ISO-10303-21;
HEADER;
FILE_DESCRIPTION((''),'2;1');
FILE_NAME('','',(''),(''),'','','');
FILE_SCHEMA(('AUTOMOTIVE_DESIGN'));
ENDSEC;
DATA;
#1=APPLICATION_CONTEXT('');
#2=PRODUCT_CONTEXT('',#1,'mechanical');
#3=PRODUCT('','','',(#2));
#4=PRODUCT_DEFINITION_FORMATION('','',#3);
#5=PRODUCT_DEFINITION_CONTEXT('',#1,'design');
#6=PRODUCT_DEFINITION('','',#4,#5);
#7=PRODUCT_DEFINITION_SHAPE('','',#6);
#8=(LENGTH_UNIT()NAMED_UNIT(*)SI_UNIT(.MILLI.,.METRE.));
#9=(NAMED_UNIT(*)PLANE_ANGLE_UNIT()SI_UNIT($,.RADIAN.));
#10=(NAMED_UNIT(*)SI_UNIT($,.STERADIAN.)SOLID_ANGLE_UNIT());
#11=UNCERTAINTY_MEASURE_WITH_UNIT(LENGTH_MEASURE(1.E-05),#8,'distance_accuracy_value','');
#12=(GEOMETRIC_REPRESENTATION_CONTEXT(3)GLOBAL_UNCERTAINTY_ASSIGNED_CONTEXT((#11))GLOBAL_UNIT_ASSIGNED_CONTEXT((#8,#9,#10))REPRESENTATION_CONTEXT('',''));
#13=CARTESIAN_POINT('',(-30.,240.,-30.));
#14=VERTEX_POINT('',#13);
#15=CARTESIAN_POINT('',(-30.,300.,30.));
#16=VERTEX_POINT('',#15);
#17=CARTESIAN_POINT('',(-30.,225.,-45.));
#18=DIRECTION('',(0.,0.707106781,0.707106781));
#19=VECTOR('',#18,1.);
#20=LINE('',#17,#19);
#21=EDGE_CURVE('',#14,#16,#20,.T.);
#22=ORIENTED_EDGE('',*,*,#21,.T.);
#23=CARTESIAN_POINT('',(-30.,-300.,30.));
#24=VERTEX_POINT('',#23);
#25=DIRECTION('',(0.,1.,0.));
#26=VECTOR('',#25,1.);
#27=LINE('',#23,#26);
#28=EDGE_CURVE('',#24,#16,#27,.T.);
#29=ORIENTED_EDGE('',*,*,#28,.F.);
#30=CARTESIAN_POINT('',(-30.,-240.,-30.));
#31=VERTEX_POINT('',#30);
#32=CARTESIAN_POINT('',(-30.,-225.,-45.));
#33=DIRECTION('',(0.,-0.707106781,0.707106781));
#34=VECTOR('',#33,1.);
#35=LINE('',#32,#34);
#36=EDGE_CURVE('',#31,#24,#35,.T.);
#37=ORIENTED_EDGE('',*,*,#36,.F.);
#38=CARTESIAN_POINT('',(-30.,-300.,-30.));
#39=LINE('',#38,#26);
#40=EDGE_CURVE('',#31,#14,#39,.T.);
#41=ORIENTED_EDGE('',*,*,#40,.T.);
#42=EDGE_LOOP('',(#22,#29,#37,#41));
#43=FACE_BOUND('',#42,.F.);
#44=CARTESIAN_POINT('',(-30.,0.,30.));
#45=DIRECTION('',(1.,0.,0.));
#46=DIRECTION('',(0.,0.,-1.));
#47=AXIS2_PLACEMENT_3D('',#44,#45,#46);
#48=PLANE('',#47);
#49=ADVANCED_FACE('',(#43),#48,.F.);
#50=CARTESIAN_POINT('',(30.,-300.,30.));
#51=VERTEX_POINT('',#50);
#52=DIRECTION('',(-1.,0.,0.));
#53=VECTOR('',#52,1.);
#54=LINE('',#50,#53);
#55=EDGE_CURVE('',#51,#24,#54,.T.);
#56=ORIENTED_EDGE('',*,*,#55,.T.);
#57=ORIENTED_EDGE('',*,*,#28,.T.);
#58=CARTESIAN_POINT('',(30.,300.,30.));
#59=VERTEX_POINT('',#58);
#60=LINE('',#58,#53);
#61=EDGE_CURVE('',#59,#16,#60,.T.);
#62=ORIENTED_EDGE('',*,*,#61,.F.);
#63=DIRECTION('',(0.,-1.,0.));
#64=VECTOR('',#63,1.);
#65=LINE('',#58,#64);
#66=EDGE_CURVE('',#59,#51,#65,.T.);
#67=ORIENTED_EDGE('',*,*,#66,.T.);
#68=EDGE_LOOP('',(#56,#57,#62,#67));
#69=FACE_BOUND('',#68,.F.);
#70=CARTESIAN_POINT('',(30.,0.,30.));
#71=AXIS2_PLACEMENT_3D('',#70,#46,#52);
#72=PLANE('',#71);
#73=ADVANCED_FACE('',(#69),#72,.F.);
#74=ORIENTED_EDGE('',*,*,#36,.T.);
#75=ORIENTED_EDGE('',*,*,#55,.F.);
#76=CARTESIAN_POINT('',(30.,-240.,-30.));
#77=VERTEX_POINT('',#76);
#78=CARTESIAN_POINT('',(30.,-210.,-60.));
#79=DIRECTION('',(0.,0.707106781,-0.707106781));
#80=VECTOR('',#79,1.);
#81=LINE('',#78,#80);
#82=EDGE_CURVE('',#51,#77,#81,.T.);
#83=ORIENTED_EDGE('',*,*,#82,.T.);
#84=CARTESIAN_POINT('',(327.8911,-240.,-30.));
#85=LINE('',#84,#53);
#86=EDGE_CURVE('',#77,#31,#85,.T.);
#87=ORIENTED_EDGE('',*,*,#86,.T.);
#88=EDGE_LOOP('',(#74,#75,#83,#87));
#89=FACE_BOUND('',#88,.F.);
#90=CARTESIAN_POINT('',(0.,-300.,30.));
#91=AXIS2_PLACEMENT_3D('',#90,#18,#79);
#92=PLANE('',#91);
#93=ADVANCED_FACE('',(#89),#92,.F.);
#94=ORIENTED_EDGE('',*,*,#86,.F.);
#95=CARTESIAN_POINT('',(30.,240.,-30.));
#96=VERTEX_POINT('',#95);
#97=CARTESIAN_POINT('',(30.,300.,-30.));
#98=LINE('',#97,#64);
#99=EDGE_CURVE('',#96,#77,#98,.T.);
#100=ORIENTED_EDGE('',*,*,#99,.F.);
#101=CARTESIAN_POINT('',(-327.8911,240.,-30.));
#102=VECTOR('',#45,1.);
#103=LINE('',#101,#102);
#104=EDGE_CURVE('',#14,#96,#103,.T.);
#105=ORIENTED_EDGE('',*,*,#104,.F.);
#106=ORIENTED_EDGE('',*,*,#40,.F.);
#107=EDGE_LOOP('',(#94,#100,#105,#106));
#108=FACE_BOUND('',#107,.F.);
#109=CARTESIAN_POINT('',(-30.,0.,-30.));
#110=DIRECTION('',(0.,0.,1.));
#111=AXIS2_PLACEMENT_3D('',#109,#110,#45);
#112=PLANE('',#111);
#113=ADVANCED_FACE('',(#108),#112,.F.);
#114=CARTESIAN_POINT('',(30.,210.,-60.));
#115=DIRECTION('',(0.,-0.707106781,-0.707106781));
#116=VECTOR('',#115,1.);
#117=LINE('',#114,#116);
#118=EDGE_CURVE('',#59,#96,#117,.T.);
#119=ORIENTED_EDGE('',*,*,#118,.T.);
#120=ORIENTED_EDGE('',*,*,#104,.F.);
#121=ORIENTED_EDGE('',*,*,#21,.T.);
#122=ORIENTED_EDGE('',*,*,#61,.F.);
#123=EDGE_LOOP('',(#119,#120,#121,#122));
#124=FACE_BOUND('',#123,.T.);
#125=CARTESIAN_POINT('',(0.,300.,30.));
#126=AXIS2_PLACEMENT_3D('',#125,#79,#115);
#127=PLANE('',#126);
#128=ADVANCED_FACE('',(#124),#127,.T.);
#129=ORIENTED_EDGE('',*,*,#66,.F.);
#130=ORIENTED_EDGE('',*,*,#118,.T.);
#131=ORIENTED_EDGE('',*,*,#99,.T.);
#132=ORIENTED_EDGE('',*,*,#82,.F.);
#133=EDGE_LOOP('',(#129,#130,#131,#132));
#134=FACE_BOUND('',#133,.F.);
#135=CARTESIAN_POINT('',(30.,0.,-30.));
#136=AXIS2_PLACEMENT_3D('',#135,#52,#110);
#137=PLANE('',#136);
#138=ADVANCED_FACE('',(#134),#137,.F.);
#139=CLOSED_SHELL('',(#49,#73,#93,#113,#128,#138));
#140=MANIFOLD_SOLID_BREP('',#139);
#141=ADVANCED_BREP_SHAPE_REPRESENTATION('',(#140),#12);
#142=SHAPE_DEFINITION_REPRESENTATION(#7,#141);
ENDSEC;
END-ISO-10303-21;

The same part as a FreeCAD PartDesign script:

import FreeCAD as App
import Part
import Sketcher

V = App.Vector


def add_polygon(sketch, points):
    """Adds a closed chain of lines whose ends are joined by coincident constraints."""
    first, n = sketch.GeometryCount, len(points)
    for a, b in zip(points, points[1:] + points[:1]):
        sketch.addGeometry(Part.LineSegment(App.Vector(*a, 0), App.Vector(*b, 0)), False)
    for i in range(n):
        sketch.addConstraint(Sketcher.Constraint("Coincident", first + i, 2, first + (i + 1) % n, 1))

doc = App.newDocument("Part")
body = doc.addObject("PartDesign::Body", "Body")

sketch1 = body.newObject("Sketcher::SketchObject", "Sketch")
sketch1.AttachmentSupport = (doc.getObject("XZ_Plane"), [""])
sketch1.MapMode = "FlatFace"
add_polygon(sketch1, [(-30, 30), (-30, -30), (30, -30), (30, 30)])
sketch1.addConstraint(Sketcher.Constraint("Vertical", 0))
sketch1.addConstraint(Sketcher.Constraint("Horizontal", 1))
sketch1.addConstraint(Sketcher.Constraint("Vertical", 2))
sketch1.addConstraint(Sketcher.Constraint("Horizontal", 3))
sketch1.addConstraint(Sketcher.Constraint("Symmetric", 0, 2, 2, 2, -1, 1))
sketch1.addConstraint(Sketcher.Constraint("Equal", 3, 0))
sketch1.addConstraint(Sketcher.Constraint("DistanceX", 1, 1, 1, 2, 60.0))
pad1 = body.newObject("PartDesign::Pad", "Pad")
pad1.Profile = sketch1
pad1.Length = 600
pad1.Midplane = True

sketch2 = body.newObject("Sketcher::SketchObject", "Sketch001")
sketch2.AttachmentSupport = (doc.getObject("YZ_Plane"), [""])
sketch2.MapMode = "FlatFace"
add_polygon(sketch2, [(-240, -30), (-300, 30), (-300, -30)])
add_polygon(sketch2, [(300, -30), (300, 30), (240, -30)])
sketch2.addConstraint(Sketcher.Constraint("Vertical", 1))
sketch2.addConstraint(Sketcher.Constraint("Horizontal", 2))
sketch2.addConstraint(Sketcher.Constraint("Vertical", 3))
sketch2.addConstraint(Sketcher.Constraint("Horizontal", 5))
sketch2.addConstraint(Sketcher.Constraint("Symmetric", 1, 2, 3, 2, -1, 1))
sketch2.addConstraint(Sketcher.Constraint("Symmetric", 2, 2, 4, 2, -2))
sketch2.addConstraint(Sketcher.Constraint("Perpendicular", 0, 4))
sketch2.addConstraint(Sketcher.Constraint("Horizontal", 0, 2, 3, 2))
sketch2.addConstraint(Sketcher.Constraint("DistanceX", 2, 1, 2, 2, 60.0))
sketch2.addConstraint(Sketcher.Constraint("DistanceX", 0, 2, -1, 1, 300.0))
pocket1 = body.newObject("PartDesign::Pocket", "Pocket")
pocket1.Profile = sketch2
pocket1.Length = 655.7822
pocket1.Midplane = True

doc.recompute()
